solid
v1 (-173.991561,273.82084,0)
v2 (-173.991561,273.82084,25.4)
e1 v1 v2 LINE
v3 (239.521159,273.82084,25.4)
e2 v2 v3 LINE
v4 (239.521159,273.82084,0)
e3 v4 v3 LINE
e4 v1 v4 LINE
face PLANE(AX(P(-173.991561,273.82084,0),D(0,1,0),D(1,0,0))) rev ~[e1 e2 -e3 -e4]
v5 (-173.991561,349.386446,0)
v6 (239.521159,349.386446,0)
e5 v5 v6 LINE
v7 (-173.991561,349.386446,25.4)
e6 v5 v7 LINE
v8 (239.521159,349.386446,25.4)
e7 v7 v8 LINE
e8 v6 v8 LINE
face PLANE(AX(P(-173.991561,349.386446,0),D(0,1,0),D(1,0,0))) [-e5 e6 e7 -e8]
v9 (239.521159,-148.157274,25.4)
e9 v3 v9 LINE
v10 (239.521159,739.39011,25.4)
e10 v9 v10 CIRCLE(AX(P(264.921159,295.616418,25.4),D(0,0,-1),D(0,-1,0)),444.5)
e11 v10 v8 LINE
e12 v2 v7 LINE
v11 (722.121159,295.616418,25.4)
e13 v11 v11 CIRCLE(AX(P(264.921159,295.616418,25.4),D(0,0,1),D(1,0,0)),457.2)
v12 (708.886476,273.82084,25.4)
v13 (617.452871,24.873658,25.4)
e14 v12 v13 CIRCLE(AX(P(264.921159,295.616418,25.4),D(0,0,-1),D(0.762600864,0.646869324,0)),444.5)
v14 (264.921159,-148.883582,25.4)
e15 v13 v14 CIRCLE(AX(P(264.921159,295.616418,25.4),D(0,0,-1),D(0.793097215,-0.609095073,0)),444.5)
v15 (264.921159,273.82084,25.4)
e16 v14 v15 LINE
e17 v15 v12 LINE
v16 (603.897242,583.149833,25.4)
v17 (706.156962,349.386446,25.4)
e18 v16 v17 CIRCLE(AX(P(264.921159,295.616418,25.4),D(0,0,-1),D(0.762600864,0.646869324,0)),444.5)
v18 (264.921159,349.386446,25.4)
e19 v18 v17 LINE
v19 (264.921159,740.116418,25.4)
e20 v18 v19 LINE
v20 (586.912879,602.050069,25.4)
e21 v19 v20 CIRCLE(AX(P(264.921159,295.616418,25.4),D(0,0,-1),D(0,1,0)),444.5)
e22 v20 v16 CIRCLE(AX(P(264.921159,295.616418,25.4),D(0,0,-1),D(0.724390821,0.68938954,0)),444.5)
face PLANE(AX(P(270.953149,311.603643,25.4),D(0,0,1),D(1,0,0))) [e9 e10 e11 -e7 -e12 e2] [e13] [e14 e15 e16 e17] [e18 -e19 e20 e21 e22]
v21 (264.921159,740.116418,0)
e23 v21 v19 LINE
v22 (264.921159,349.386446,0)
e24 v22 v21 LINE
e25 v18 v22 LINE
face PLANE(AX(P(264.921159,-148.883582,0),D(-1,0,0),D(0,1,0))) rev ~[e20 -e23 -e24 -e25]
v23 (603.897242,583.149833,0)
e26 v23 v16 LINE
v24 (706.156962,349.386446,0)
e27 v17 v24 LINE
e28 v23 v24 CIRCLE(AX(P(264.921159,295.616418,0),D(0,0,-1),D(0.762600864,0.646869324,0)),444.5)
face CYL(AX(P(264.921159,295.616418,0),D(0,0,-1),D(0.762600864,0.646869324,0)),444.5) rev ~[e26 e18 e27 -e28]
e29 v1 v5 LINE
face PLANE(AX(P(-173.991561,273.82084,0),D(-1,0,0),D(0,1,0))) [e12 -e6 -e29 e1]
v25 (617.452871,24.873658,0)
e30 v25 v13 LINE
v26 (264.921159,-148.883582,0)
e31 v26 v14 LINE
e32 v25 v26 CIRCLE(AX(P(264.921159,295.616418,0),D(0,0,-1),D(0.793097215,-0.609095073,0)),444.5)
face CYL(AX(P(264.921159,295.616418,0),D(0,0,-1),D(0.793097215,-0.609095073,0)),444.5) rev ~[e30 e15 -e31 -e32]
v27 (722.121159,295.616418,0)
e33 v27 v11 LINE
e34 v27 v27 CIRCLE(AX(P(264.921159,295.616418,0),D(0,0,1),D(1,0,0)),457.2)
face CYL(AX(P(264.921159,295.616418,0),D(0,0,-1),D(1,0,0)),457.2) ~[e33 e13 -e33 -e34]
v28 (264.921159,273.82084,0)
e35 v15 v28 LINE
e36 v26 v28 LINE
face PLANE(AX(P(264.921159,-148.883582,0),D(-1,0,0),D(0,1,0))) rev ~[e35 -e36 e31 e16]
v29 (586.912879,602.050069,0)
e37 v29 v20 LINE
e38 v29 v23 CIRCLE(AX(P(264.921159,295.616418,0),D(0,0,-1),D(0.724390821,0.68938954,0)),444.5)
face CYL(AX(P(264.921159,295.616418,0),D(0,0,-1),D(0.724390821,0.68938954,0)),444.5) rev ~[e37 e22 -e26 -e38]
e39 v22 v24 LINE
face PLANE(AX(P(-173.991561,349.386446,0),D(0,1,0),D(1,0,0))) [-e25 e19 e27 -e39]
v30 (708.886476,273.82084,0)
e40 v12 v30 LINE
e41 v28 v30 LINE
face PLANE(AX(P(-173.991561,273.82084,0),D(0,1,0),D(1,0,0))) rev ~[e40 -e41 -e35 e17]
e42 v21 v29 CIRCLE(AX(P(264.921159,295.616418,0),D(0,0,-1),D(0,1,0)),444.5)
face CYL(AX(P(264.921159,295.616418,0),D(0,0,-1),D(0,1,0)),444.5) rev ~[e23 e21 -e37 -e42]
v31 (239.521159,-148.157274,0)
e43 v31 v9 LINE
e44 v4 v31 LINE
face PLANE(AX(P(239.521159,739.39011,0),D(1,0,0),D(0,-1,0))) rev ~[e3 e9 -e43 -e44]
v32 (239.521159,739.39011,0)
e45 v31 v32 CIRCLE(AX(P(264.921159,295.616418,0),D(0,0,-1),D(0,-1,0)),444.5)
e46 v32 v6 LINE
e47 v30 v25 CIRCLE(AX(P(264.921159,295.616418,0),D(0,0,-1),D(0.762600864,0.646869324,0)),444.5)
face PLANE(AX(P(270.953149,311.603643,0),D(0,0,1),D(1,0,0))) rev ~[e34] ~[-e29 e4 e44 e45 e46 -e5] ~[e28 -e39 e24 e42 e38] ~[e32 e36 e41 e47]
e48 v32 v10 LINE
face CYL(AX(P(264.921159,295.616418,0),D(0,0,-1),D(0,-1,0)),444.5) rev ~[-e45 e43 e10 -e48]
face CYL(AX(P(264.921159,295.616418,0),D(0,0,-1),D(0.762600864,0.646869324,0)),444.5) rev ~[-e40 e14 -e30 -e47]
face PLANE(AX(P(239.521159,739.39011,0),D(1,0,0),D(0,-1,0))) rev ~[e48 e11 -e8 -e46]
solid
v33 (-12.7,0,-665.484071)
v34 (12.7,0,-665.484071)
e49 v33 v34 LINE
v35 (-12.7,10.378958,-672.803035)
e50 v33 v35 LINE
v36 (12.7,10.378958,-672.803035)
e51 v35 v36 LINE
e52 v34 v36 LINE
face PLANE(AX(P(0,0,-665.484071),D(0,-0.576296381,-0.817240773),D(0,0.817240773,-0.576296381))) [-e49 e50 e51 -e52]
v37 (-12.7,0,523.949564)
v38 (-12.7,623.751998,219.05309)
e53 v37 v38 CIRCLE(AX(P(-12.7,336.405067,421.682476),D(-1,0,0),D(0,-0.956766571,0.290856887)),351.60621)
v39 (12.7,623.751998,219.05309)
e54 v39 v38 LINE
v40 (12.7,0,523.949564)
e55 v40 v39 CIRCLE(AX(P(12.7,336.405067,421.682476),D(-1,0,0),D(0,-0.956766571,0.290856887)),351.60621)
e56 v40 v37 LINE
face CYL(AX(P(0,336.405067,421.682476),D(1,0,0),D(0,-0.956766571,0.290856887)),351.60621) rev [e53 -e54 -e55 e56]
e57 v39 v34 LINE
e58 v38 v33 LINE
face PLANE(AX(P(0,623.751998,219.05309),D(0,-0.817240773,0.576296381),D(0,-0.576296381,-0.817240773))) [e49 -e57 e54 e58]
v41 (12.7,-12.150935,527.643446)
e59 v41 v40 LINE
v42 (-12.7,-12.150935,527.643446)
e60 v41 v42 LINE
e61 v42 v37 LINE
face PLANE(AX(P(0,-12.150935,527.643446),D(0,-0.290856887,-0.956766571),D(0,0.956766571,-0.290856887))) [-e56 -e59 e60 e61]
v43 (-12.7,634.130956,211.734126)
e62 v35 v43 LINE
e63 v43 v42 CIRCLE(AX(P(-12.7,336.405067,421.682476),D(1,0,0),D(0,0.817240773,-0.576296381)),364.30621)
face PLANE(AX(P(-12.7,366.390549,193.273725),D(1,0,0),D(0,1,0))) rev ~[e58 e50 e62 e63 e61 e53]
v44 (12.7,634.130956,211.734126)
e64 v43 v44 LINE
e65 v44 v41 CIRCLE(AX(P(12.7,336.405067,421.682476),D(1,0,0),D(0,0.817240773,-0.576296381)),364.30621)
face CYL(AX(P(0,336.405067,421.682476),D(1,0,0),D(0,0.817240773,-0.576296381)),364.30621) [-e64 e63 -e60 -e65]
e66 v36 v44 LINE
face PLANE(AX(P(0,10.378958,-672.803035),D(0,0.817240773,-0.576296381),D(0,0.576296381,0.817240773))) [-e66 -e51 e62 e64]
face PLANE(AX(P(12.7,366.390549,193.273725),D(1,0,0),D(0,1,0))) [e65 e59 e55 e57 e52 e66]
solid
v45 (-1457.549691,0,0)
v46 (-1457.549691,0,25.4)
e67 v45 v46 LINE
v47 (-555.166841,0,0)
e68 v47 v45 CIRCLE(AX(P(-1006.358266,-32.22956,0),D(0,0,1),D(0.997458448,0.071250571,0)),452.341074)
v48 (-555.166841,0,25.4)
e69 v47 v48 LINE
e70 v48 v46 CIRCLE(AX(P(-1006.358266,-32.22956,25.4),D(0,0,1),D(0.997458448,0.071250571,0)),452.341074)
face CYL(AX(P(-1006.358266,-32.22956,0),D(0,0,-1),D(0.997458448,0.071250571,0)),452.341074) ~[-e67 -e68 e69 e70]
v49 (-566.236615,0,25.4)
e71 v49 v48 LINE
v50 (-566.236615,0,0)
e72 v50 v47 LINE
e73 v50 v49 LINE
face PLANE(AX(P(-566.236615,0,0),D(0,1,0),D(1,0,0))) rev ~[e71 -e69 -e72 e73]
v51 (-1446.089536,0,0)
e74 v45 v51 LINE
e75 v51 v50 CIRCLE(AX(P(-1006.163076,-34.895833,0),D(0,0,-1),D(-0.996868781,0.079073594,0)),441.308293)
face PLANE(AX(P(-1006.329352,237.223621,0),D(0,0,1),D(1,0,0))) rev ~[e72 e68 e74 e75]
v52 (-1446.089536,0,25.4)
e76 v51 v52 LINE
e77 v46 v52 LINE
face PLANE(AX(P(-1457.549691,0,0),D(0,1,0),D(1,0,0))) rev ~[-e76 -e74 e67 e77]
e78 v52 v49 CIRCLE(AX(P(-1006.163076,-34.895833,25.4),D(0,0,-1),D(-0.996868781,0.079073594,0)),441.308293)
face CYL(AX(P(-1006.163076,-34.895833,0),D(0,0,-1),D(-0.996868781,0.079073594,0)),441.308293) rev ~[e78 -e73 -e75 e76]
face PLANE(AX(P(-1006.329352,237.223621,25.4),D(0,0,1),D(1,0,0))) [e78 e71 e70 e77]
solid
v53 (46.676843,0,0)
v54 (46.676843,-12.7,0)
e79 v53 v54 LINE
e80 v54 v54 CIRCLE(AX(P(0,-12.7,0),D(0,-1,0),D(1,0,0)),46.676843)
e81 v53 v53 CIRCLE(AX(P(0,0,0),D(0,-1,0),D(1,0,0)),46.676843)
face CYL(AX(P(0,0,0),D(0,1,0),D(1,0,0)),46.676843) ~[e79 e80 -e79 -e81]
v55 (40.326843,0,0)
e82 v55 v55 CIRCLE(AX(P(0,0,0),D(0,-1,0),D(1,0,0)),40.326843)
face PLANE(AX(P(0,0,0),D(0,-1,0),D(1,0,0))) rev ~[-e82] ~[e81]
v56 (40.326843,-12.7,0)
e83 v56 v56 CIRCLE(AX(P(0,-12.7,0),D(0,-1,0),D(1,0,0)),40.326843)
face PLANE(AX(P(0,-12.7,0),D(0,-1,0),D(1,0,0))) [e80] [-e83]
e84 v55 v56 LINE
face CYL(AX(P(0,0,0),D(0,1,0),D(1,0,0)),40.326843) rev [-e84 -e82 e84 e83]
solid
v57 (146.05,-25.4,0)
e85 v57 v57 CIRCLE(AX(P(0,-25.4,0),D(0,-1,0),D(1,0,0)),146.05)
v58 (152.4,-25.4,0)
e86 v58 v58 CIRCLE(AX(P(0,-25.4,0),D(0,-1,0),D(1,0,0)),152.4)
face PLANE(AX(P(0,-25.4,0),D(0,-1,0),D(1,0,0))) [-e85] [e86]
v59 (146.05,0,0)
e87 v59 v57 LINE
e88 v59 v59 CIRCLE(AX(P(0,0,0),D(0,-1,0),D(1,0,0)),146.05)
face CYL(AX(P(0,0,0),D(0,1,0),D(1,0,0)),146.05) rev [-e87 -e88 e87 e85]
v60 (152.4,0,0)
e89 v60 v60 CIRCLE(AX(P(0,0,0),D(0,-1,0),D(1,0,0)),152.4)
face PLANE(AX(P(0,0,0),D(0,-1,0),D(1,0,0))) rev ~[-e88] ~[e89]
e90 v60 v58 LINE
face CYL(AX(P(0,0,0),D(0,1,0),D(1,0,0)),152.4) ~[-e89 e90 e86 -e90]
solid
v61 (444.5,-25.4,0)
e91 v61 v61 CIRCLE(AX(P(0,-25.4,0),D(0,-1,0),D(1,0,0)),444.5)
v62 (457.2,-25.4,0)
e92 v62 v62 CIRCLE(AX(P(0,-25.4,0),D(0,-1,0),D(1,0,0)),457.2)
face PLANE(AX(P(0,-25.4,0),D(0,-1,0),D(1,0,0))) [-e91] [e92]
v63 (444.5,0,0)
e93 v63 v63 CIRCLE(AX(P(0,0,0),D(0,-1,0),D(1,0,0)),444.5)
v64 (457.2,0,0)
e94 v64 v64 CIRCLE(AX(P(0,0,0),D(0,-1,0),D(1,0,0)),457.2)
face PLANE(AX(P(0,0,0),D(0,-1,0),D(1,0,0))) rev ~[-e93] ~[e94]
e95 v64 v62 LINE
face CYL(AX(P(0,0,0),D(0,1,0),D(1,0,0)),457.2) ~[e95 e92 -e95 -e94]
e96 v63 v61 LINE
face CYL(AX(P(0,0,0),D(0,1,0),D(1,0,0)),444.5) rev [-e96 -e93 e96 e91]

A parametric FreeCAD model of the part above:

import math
import FreeCAD as App
import Part
import Sketcher
Q = App.Units.Quantity


def add_polygon(sketch, points):
    """Adds a closed chain of lines whose ends are joined by coincident constraints."""
    first, n = sketch.GeometryCount, len(points)
    for a, b in zip(points, points[1:] + points[:1]):
        sketch.addGeometry(Part.LineSegment(App.Vector(*a, 0), App.Vector(*b, 0)), False)
    for i in range(n):
        sketch.addConstraint(Sketcher.Constraint("Coincident", first + i, 2, first + (i + 1) % n, 1))

doc = App.newDocument("Part")
params = doc.addObject("Spreadsheet::Sheet", "Params")
for row, (alias, value) in enumerate([
    ("sketch1_diameter", "36 in"),
    ("sketch1_diameter2", "35 in"),
    ("pad1_length", "1 in"),
    ("pad2_length", "1 in"),
    ("sketch3_diameter", "12 in"),
    ("sketch3_diameter2", "11.5 in"),
    ("pad3_length", "1 in"),
    ("pad4_length", "0.5 in"),
    ("sketch5_length", "0.5 in"),
    ("pad5_length", "1 in"),
    ("sketch6_diameter", "36 in"),
    ("sketch6_radius", "17.5 in"),
    ("pad6_length", "1 in"),
    ("pad7_length", "1 in"),
], start=1):
    params.set(f"A{row}", alias)
    params.set(f"B{row}", "=" + value)
    params.setAlias(f"B{row}", alias)

body = doc.addObject("PartDesign::Body", "Body")

sketch1 = doc.addObject("Sketcher::SketchObject", "Sketch")
body.addObject(sketch1)
sketch1.AttachmentSupport = (doc.XZ_Plane, [""])
sketch1.MapMode = "FlatFace"
sketch1.addGeometry([
    Part.Circle(App.Vector(0, 0, 0), App.Vector(0, 0, 1), 457),
    Part.Circle(App.Vector(0, 0, 0), App.Vector(0, 0, 1), 444),
], False)
sketch1.addConstraint([
    Sketcher.Constraint("Coincident", 0, 3, -1, 1),
    Sketcher.Constraint("Coincident", 1, 3, -1, 1),
    Sketcher.Constraint("Diameter", 0, Q("36 in")),
    Sketcher.Constraint("Diameter", 1, Q("35 in")),
])
sketch1.setExpression("Constraints[2]", "Params.sketch1_diameter")
sketch1.setExpression("Constraints[3]", "Params.sketch1_diameter2")
pad1 = doc.addObject("PartDesign::Pad", "Pad")
body.addObject(pad1)
pad1.Profile = sketch1
pad1.setExpression("Length", "Params.pad1_length")
body2 = doc.addObject("PartDesign::Body", "Body001")

sketch2 = doc.addObject("Sketcher::SketchObject", "Sketch001")
body2.addObject(sketch2)
sketch2.AttachmentSupport = (doc.getObject("XY_Plane001"), [""])
sketch2.MapMode = "FlatFace"
sketch2.addGeometry([
    Part.LineSegment(App.Vector(-566, 0, 0), App.Vector(-555, 0, 0)),
    Part.ArcOfCircle(Part.Circle(App.Vector(-1006, -32, 0), App.Vector(0, 0, 1), 452), math.radians(4), math.radians(176)),
    Part.LineSegment(App.Vector(-1458, 0, 0), App.Vector(-1446, 0, 0)),
    Part.ArcOfCircle(Part.Circle(App.Vector(-1006, -35, 0), App.Vector(0, 0, 1), 441), math.radians(5), math.radians(175)),
], False)
sketch2.addConstraint([
    Sketcher.Constraint("Coincident", 0, 2, 1, 1),
    Sketcher.Constraint("Coincident", 1, 2, 2, 1),
    Sketcher.Constraint("Coincident", 2, 2, 3, 2),
    Sketcher.Constraint("Coincident", 3, 1, 0, 1),
    Sketcher.Constraint("Horizontal", 0),
    Sketcher.Constraint("Horizontal", 2),
    Sketcher.Constraint("PointOnObject", 0, 2, -1),
    Sketcher.Constraint("PointOnObject", 2, 2, -1),
    Sketcher.Constraint("Radius", 1, Q("452.341074 mm")),
    Sketcher.Constraint("Radius", 3, Q("441.308293 mm")),
    Sketcher.Constraint("DistanceX", 0, 1, 0, 2, Q("11.069775 mm")),
    Sketcher.Constraint("DistanceX", 2, 1, 2, 2, Q("11.460155 mm")),
    Sketcher.Constraint("DistanceY", 1, 3, -1, 1, Q("32.22956 mm")),
    Sketcher.Constraint("DistanceX", 0, 2, -1, 1, Q("555.166841 mm")),
])
pad2 = doc.addObject("PartDesign::Pad", "Pad001")
body2.addObject(pad2)
pad2.Profile = sketch2
pad2.setExpression("Length", "Params.pad2_length")
body3 = doc.addObject("PartDesign::Body", "Body002")

sketch3 = doc.addObject("Sketcher::SketchObject", "Sketch002")
body3.addObject(sketch3)
sketch3.AttachmentSupport = (doc.getObject("XZ_Plane002"), [""])
sketch3.MapMode = "FlatFace"
sketch3.addGeometry([
    Part.Circle(App.Vector(0, 0, 0), App.Vector(0, 0, 1), 152),
    Part.Circle(App.Vector(0, 0, 0), App.Vector(0, 0, 1), 146),
], False)
sketch3.addConstraint([
    Sketcher.Constraint("Coincident", 0, 3, -1, 1),
    Sketcher.Constraint("Coincident", 1, 3, -1, 1),
    Sketcher.Constraint("Diameter", 0, Q("12 in")),
    Sketcher.Constraint("Diameter", 1, Q("11.5 in")),
])
sketch3.setExpression("Constraints[2]", "Params.sketch3_diameter")
sketch3.setExpression("Constraints[3]", "Params.sketch3_diameter2")
pad3 = doc.addObject("PartDesign::Pad", "Pad002")
body3.addObject(pad3)
pad3.Profile = sketch3
pad3.setExpression("Length", "Params.pad3_length")
body4 = doc.addObject("PartDesign::Body", "Body003")

sketch4 = doc.addObject("Sketcher::SketchObject", "Sketch003")
body4.addObject(sketch4)
sketch4.AttachmentSupport = (doc.getObject("XZ_Plane003"), [""])
sketch4.MapMode = "FlatFace"
sketch4.addGeometry([
    Part.Circle(App.Vector(0, 0, 0), App.Vector(0, 0, 1), 47),
    Part.Circle(App.Vector(0, 0, 0), App.Vector(0, 0, 1), 40),
], False)
sketch4.addConstraint([
    Sketcher.Constraint("Coincident", 0, 3, -1, 1),
    Sketcher.Constraint("Coincident", 1, 3, -1, 1),
    Sketcher.Constraint("Diameter", 0, Q("93.353686 mm")),
    Sketcher.Constraint("Diameter", 1, Q("80.653686 mm")),
])
pad4 = doc.addObject("PartDesign::Pad", "Pad003")
body4.addObject(pad4)
pad4.Profile = sketch4
pad4.setExpression("Length", "Params.pad4_length")
body5 = doc.addObject("PartDesign::Body", "Body004")

sketch5 = doc.addObject("Sketcher::SketchObject", "Sketch004")
body5.addObject(sketch5)
sketch5.AttachmentSupport = (doc.getObject("YZ_Plane004"), [""])
sketch5.MapMode = "FlatFace"
sketch5.addGeometry([
    Part.LineSegment(App.Vector(624, 219, 0), App.Vector(0, -665, 0)),
    Part.LineSegment(App.Vector(0, -665, 0), App.Vector(10, -673, 0)),
    Part.LineSegment(App.Vector(10, -673, 0), App.Vector(634, 212, 0)),
    Part.ArcOfCircle(Part.Circle(App.Vector(336, 422, 0), App.Vector(0, 0, 1), 364), math.radians(-35), math.radians(163)),
    Part.LineSegment(App.Vector(-12, 528, 0), App.Vector(0, 524, 0)),
    Part.ArcOfCircle(Part.Circle(App.Vector(336, 422, 0), App.Vector(0, 0, 1), 352), math.radians(-35), math.radians(163)),
], False)
sketch5.addConstraint([
    Sketcher.Constraint("Coincident", 0, 2, 1, 1),
    Sketcher.Constraint("Coincident", 1, 2, 2, 1),
    Sketcher.Constraint("Tangent", 2, 2, 3, 1),
    Sketcher.Constraint("Coincident", 3, 2, 4, 1),
    Sketcher.Constraint("Coincident", 4, 2, 5, 2),
    Sketcher.Constraint("Tangent", 5, 1, 0, 1),
    Sketcher.Constraint("Coincident", 5, 3, 3, 3),
    Sketcher.Constraint("PointOnObject", 0, 2, -2),
    Sketcher.Constraint("PointOnObject", 4, 2, -2),
    Sketcher.Constraint("Perpendicular", 0, 1),
    Sketcher.Constraint("Perpendicular", 1, 2),
    Sketcher.Constraint("Distance", 1, Q("0.5 in")),
    Sketcher.Constraint("Radius", 3, Q("364.30621 mm")),
    Sketcher.Constraint("Distance", 0, Q("1082.345852 mm")),
    Sketcher.Constraint("DistanceY", 0, 2, -1, 1, Q("665.484071 mm")),
    Sketcher.Constraint("DistanceX", 1, 2, 3, 3, Q("326.02611 mm")),
    Sketcher.Constraint("DistanceY", 3, 3, 3, 2, Q("105.96097 mm")),
])
sketch5.setExpression("Constraints[11]", "Params.sketch5_length")
pad5 = doc.addObject("PartDesign::Pad", "Pad004")
body5.addObject(pad5)
pad5.Profile = sketch5
pad5.setExpression("Length", "Params.pad5_length")
pad5.Midplane = True
body6 = doc.addObject("PartDesign::Body", "Body005")

sketch6 = doc.addObject("Sketcher::SketchObject", "Sketch005")
body6.addObject(sketch6)
sketch6.AttachmentSupport = (doc.getObject("XY_Plane005"), [""])
sketch6.MapMode = "FlatFace"
sketch6.addGeometry([
    Part.Circle(App.Vector(265, 296, 0), App.Vector(0, 0, 1), 457),
    Part.ArcOfCircle(Part.Circle(App.Vector(265, 296, 0), App.Vector(0, 0, 1), 445), math.radians(93), math.radians(267)),
    Part.LineSegment(App.Vector(240, 739, 0), App.Vector(240, -148, 0)),
    Part.ArcOfCircle(Part.Circle(App.Vector(265, 296, 0), App.Vector(0, 0, 1), 445), math.radians(-90), math.radians(-38)),
    Part.LineSegment(App.Vector(265, -149, 0), App.Vector(265, 740, 0)),
    Part.ArcOfCircle(Part.Circle(App.Vector(265, 296, 0), App.Vector(0, 0, 1), 444), math.radians(44), math.radians(90)),
    Part.ArcOfCircle(Part.Circle(App.Vector(265, 296, 0), App.Vector(0, 0, 1), 445), math.radians(40.31), math.radians(43.58)),
    Part.ArcOfCircle(Part.Circle(App.Vector(265, 296, 0), App.Vector(0, 0, 1), 445), math.radians(-38), math.radians(40)),
], False)
sketch6.addConstraint([
    Sketcher.Constraint("Coincident", 1, 1, 2, 1),
    Sketcher.Constraint("Coincident", 2, 2, 1, 2),
    Sketcher.Constraint("Coincident", 3, 1, 4, 1),
    Sketcher.Constraint("Coincident", 4, 2, 5, 2),
    Sketcher.Constraint("Tangent", 5, 1, 6, 2),
    Sketcher.Constraint("Coincident", 6, 1, 7, 2),
    Sketcher.Constraint("Coincident", 7, 1, 3, 2),
    Sketcher.Constraint("Vertical", 2),
    Sketcher.Constraint("Vertical", 4),
    Sketcher.Constraint("Coincident", 1, 3, 0, 3),
    Sketcher.Constraint("Coincident", 3, 3, 0, 3),
    Sketcher.Constraint("Coincident", 5, 3, 0, 3),
    Sketcher.Constraint("Coincident", 7, 3, 0, 3),
    Sketcher.Constraint("Equal", 1, 3),
    Sketcher.Constraint("Equal", 5, 6),
    Sketcher.Constraint("Diameter", 0, Q("36 in")),
    Sketcher.Constraint("Radius", 1, Q("17.5 in")),
    Sketcher.Constraint("DistanceX", 2, 2, 6, 3, Q("1 in")),
    Sketcher.Constraint("DistanceX", -1, 1, 0, 3, Q("264.921159 mm")),
    Sketcher.Constraint("DistanceY", -1, 1, 0, 3, Q("295.616418 mm")),
    Sketcher.Constraint("DistanceX", -1, 1, 4, 2, Q("264.921159 mm")),
    Sketcher.Constraint("DistanceX", -1, 1, 5, 1, Q("586.912879 mm")),
    Sketcher.Constraint("DistanceX", -1, 1, 7, 1, Q("617.452871 mm")),
    Sketcher.Constraint("DistanceX", -1, 1, 6, 1, Q("603.897242 mm")),
])
sketch6.setExpression("Constraints[15]", "Params.sketch6_diameter")
sketch6.setExpression("Constraints[16]", "Params.sketch6_radius")
pad6 = doc.addObject("PartDesign::Pad", "Pad005")
body6.addObject(pad6)
pad6.Profile = sketch6
pad6.setExpression("Length", "Params.pad6_length")

sketch7 = doc.addObject("Sketcher::SketchObject", "Sketch006")
body6.addObject(sketch7)
sketch7.AttachmentSupport = (doc.getObject("XY_Plane005"), [""])
sketch7.MapMode = "FlatFace"
add_polygon(sketch7, [(-174, 349), (-174, 274), (716, 274), (716, 349)])
sketch7.addConstraint([
    Sketcher.Constraint("Vertical", 0),
    Sketcher.Constraint("Horizontal", 1),
    Sketcher.Constraint("Vertical", 2),
    Sketcher.Constraint("Horizontal", 3),
    Sketcher.Constraint("DistanceX", 1, 1, 1, 2, Q("889.889419 mm")),
    Sketcher.Constraint("DistanceY", 0, 2, 0, 1, Q("75.565606 mm")),
    Sketcher.Constraint("DistanceX", 0, 2, -1, 1, Q("173.991561 mm")),
    Sketcher.Constraint("DistanceY", -1, 1, 0, 2, Q("273.82084 mm")),
])
pad7 = doc.addObject("PartDesign::Pad", "Pad006")
body6.addObject(pad7)
pad7.Profile = sketch7
pad7.setExpression("Length", "Params.pad7_length")

doc.recompute()
